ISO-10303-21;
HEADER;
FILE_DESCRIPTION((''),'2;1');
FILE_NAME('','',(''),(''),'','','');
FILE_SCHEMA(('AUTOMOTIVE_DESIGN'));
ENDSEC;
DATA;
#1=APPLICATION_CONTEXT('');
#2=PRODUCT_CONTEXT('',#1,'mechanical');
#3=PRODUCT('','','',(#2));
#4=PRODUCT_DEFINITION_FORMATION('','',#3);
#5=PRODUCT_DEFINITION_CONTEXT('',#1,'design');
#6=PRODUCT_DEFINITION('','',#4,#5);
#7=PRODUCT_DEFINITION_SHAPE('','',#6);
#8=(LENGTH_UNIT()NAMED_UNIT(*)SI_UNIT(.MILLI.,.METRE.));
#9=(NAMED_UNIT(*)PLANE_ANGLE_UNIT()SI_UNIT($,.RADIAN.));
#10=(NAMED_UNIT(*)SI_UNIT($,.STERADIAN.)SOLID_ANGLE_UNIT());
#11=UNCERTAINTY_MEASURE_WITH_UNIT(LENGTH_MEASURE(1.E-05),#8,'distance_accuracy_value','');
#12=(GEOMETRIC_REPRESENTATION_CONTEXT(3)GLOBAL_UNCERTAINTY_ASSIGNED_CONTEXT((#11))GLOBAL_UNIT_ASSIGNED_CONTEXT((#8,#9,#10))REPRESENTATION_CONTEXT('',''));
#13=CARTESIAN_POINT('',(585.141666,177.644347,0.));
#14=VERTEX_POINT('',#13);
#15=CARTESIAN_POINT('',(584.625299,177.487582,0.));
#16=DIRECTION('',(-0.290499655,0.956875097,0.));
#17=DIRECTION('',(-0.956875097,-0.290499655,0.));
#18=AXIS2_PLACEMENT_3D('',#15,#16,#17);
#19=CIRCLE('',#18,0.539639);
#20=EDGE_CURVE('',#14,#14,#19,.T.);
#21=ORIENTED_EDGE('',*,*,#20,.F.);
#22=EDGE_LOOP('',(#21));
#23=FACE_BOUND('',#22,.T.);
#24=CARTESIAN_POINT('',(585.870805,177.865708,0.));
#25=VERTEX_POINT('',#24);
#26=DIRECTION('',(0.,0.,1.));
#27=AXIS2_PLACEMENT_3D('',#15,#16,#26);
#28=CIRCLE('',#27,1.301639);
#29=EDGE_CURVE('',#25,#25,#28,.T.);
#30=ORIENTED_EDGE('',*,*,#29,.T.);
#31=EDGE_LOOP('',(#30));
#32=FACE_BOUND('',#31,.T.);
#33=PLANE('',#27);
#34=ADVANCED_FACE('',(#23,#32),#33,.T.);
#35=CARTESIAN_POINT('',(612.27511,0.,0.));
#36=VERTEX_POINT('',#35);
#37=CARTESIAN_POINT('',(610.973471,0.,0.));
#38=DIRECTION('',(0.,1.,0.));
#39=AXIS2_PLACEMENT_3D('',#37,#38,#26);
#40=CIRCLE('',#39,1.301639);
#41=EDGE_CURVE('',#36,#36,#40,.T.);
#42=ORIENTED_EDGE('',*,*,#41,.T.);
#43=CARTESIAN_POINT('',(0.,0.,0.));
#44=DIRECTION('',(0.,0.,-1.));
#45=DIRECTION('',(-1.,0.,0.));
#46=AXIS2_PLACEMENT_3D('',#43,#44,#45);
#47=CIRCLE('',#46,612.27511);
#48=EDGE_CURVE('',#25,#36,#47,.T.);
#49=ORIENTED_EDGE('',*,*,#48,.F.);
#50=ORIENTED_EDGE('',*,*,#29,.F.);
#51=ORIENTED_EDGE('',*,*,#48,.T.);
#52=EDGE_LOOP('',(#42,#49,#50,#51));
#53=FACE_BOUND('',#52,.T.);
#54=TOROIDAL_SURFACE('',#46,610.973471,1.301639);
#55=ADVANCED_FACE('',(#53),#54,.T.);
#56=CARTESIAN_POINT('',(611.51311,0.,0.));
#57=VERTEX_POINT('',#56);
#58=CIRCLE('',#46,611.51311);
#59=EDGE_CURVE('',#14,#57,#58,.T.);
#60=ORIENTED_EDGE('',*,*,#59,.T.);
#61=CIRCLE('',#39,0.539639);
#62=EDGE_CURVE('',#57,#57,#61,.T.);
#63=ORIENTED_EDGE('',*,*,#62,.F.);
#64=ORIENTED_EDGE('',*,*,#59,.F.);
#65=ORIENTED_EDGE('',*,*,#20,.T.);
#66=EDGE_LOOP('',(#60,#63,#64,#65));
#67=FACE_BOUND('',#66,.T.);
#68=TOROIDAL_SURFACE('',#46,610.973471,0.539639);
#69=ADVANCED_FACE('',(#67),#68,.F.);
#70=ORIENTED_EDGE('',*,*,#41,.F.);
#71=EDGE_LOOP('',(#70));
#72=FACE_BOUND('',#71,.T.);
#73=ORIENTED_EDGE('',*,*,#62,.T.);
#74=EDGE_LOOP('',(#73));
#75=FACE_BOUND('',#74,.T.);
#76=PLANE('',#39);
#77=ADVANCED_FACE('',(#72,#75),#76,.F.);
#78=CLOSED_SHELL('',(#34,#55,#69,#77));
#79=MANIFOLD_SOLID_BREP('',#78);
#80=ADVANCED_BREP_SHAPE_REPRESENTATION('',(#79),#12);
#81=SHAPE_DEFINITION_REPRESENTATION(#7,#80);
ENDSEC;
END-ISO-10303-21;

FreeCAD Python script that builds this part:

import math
import FreeCAD as App
import Part
import Sketcher

V = App.Vector

doc = App.newDocument("Part")
body = doc.addObject("PartDesign::Body", "Body")

sketch1 = body.newObject("Sketcher::SketchObject", "Sketch")
sketch1.AttachmentSupport = (doc.getObject("XZ_Plane"), [""])
sketch1.MapMode = "FlatFace"
sketch1.addGeometry(Part.Circle(V(611, 0, 0), V(0, 0, 1), 1.3), False)
sketch1.addGeometry(Part.Circle(V(611, 0, 0), V(0, 0, 1), 0.5), False)
sketch1.addConstraint(Sketcher.Constraint("Coincident", 1, 3, 0, 3))
sketch1.addConstraint(Sketcher.Constraint("PointOnObject", 0, 3, -1))
sketch1.addConstraint(Sketcher.Constraint("Diameter", 0, 2.603279))
sketch1.addConstraint(Sketcher.Constraint("Diameter", 1, 1.079279))
sketch1.addConstraint(Sketcher.Constraint("DistanceX", -1, 1, 0, 3, 610.973471))

sketch2 = body.newObject("Sketcher::SketchObject", "Sketch001")
sketch2.AttachmentSupport = (doc.getObject("XY_Plane"), [""])
sketch2.MapMode = "FlatFace"
sketch2.addGeometry(Part.ArcOfCircle(Part.Circle(V(0, 0, 0), V(0, 0, 1), 612), math.radians(0), math.radians(16.89)), False)
sketch2.addConstraint(Sketcher.Constraint("Coincident", 0, 3, -1, 1))
sketch2.addConstraint(Sketcher.Constraint("PointOnObject", 0, 1, -1))
sketch2.addConstraint(Sketcher.Constraint("DistanceY", -1, 1, 0, 2, 177.8))
sketch2.addConstraint(Sketcher.Constraint("Radius", 0, 612.04892))
doc.recompute()

additivepipe = body.newObject("PartDesign::AdditivePipe", "AdditivePipe")
additivepipe.Profile = sketch1
additivepipe.Spine = (sketch2, ["Edge1"])

doc.recompute()
